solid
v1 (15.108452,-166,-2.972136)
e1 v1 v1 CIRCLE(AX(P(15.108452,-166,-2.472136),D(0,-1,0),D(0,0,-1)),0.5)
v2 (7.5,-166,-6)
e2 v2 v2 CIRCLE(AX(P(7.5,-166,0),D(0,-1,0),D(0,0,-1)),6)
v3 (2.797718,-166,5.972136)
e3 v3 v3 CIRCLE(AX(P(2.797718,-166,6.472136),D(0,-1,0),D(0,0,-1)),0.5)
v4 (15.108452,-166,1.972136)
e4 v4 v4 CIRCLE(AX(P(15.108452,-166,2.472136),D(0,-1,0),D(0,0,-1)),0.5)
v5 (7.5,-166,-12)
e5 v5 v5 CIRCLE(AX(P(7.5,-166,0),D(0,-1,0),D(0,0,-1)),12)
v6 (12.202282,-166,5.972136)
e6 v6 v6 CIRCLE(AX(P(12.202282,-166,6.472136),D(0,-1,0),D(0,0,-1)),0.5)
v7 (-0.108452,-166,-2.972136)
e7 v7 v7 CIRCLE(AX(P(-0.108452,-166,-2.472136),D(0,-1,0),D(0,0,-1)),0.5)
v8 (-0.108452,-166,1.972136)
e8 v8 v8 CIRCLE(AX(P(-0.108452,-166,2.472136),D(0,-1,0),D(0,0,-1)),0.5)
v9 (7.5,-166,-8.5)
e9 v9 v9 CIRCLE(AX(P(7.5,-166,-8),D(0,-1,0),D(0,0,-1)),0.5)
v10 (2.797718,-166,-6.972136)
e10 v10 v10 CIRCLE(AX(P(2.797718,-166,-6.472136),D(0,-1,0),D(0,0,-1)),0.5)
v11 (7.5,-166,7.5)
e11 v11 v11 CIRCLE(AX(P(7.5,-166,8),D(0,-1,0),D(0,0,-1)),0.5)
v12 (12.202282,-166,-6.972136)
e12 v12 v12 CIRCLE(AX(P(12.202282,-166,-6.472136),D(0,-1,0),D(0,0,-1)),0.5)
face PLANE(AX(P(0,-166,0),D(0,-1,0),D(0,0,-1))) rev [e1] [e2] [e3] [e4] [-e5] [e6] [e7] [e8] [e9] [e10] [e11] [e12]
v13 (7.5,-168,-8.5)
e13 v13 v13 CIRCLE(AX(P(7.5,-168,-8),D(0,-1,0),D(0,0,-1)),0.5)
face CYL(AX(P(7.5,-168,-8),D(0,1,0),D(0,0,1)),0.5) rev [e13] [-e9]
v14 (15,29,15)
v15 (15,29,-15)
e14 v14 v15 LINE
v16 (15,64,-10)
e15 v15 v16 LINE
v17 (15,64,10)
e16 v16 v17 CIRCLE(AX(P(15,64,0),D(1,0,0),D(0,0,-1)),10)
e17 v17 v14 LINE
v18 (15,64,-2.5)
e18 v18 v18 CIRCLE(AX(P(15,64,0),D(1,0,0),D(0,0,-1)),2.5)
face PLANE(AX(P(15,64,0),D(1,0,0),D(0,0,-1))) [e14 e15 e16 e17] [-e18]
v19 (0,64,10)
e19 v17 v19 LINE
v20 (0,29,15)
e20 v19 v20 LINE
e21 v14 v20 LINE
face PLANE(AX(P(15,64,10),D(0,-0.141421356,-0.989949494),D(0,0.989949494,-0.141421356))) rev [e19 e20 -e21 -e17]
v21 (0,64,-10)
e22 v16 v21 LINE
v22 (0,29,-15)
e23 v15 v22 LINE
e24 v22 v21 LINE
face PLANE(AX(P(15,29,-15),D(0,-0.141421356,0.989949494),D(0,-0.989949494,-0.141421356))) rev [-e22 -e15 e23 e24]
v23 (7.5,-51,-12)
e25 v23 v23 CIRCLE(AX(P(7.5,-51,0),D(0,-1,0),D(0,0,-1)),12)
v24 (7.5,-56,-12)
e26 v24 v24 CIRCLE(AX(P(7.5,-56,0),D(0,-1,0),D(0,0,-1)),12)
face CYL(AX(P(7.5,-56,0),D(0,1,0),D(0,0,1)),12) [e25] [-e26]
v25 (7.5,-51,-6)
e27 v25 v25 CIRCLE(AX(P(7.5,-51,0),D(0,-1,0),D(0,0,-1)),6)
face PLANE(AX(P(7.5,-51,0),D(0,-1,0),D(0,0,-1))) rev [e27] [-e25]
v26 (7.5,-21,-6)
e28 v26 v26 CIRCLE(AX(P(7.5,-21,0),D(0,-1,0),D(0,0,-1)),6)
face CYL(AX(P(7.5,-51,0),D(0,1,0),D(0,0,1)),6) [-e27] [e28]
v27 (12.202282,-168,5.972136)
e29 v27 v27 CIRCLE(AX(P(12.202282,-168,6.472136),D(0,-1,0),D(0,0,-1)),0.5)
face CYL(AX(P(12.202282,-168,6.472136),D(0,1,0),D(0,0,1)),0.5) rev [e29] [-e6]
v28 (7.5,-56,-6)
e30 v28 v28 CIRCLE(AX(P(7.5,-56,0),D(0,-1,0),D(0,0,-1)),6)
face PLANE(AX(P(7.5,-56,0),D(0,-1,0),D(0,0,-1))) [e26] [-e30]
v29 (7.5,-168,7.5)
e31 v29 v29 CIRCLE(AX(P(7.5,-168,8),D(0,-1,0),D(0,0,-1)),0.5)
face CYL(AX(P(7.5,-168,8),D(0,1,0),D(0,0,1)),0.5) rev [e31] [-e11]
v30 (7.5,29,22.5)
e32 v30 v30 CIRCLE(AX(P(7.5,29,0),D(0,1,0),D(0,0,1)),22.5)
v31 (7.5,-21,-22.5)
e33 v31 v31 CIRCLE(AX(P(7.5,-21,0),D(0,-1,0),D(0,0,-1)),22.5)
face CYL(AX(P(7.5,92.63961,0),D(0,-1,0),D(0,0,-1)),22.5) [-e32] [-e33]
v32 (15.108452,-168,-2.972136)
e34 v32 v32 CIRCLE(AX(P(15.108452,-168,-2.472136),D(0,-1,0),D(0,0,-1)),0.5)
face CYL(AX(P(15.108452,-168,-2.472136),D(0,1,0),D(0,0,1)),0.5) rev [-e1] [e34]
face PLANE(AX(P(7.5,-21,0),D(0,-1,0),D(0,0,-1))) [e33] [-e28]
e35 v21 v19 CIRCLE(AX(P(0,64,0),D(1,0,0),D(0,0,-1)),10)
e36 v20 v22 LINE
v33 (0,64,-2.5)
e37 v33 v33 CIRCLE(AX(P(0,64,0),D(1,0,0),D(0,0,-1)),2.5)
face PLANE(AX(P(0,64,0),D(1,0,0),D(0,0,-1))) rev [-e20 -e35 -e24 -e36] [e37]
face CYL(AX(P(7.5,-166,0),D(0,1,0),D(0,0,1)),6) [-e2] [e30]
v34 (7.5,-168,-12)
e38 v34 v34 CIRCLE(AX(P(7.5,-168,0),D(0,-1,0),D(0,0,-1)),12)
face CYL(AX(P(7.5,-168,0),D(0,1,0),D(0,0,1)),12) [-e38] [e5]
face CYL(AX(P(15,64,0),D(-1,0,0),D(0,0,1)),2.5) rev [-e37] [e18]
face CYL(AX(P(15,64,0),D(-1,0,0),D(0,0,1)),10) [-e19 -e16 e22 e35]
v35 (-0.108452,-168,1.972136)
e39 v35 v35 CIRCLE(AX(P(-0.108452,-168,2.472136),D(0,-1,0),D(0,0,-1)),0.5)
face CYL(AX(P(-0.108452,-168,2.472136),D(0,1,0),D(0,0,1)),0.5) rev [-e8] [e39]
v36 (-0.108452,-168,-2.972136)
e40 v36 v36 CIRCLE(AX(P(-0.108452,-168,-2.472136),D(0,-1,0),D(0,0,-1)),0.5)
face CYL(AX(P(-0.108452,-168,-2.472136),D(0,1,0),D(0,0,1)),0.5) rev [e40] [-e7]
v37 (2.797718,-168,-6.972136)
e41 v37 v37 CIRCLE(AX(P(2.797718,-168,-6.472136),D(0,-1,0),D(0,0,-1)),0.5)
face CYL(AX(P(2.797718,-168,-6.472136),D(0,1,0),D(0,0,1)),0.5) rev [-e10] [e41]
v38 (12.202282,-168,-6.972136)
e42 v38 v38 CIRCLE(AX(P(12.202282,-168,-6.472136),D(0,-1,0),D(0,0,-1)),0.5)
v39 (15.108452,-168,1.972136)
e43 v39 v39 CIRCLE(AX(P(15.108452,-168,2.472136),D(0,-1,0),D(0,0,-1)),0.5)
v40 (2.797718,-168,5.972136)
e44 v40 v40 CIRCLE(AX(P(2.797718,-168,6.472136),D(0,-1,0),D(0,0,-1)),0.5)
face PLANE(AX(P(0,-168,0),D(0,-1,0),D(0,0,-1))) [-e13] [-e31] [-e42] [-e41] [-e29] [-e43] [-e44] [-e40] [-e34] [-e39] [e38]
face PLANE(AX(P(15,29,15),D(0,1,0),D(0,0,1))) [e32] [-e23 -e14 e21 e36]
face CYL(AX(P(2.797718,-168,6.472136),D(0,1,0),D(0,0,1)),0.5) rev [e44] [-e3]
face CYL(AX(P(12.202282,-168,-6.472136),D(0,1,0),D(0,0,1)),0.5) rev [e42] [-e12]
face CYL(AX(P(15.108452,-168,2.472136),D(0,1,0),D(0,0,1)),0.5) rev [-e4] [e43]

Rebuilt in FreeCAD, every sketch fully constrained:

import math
import FreeCAD as App
import Part
import Sketcher
from FreeCAD import Vector

doc = App.newDocument("Part")
params = doc.addObject("Spreadsheet::Sheet", "Params")
for row, (alias, value) in enumerate([
    ("sketch1_diameter", "5 mm"),
    ("sketch1_radius", "10 mm"),
    ("sketch1_height", "30 mm"),
    ("pad1_length", "15 mm"),
    ("sketch2_diameter", "45 mm"),
    ("pad2_length", "39 mm"),
    ("sketch3_diameter", "45 mm"),
    ("pad3_length", "5 mm"),
    ("sketch4_diameter", "45 mm"),
    ("pad4_length", "6 mm"),
    ("sketch5_diameter", "12 mm"),
    ("pad5_length", "30 mm"),
    ("sketch6_diameter", "24 mm"),
    ("pad6_length", "5 mm"),
    ("sketch7_diameter", "12 mm"),
    ("pad7_length", "110 mm"),
    ("sketch8_diameter", "24 mm"),
    ("sketch8_diameter2", "1 mm"),
    ("pad8_length", "2 mm"),
], start=1):
    params.set(f"A{row}", alias)
    params.set(f"B{row}", "=" + value)
    params.setAlias(f"B{row}", alias)

body = doc.addObject("PartDesign::Body", "Body")

# Sketch on YZ plane
sketch1 = body.newObject("Sketcher::SketchObject", "Sketch")
sketch1.AttachmentSupport = (doc.getObject("YZ_Plane"), [""])
sketch1.MapMode = "FlatFace"
sketch1.addGeometry([
    Part.LineSegment(Vector(64, 10, 0), Vector(29, 15, 0)),  # 0
    Part.LineSegment(Vector(29, 15, 0), Vector(29, -15, 0)),  # 1
    Part.LineSegment(Vector(29, -15, 0), Vector(64, -10, 0)),  # 2
    Part.ArcOfCircle(Part.Circle(Vector(64, 0, 0), Vector(0, 0, 1), 10), math.radians(-90), math.radians(90)),  # 3
    Part.Circle(Vector(64, 0, 0), Vector(0, 0, 1), 2.5),  # 4
], False)
sketch1.addConstraint([
    Sketcher.Constraint("Coincident", 0, 2, 1, 1),
    Sketcher.Constraint("Coincident", 1, 2, 2, 1),
    Sketcher.Constraint("Coincident", 2, 2, 3, 1),
    Sketcher.Constraint("Coincident", 3, 2, 0, 1),
    Sketcher.Constraint("Vertical", 1),
    Sketcher.Constraint("Coincident", 4, 3, 3, 3),
    Sketcher.Constraint("Symmetric", 2, 2, 3, 2, -1),
    Sketcher.Constraint("Vertical", 4, 3, 2, 2),
    Sketcher.Constraint("Equal", 0, 2),
    Sketcher.Constraint("Diameter", 4, 5.0),
    Sketcher.Constraint("Radius", 3, 10.0),
    Sketcher.Constraint("DistanceY", 1, 2, 1, 1, 30.0),
    Sketcher.Constraint("DistanceX", -1, 1, 3, 3, 64.0),
    Sketcher.Constraint("DistanceX", -1, 1, 0, 2, 29.0),
])
sketch1.setExpression("Constraints[9]", "Params.sketch1_diameter")
sketch1.setExpression("Constraints[10]", "Params.sketch1_radius")
sketch1.setExpression("Constraints[11]", "Params.sketch1_height")
pad1 = body.newObject("PartDesign::Pad", "Pad")
pad1.Profile = sketch1
pad1.setExpression("Length", "Params.pad1_length")

# Sketch on XZ plane
sketch2 = body.newObject("Sketcher::SketchObject", "Sketch001")
sketch2.AttachmentSupport = (doc.getObject("XZ_Plane"), [""])
sketch2.MapMode = "FlatFace"
sketch2.AttachmentOffset = App.Placement(Vector(0, 0, 10), App.Rotation())
sketch2.addGeometry(Part.Circle(Vector(8, 0, 0), Vector(0, 0, 1), 22), False)
sketch2.addConstraint([
    Sketcher.Constraint("PointOnObject", 0, 3, -1),
    Sketcher.Constraint("Diameter", 0, 45.0),
    Sketcher.Constraint("DistanceX", -1, 1, 0, 3, 7.5),
])
sketch2.setExpression("Constraints[1]", "Params.sketch2_diameter")
pad2 = body.newObject("PartDesign::Pad", "Pad001")
pad2.Profile = sketch2
pad2.setExpression("Length", "Params.pad2_length")
pad2.Reversed = True

# Sketch on XZ plane
sketch3 = body.newObject("Sketcher::SketchObject", "Sketch002")
sketch3.AttachmentSupport = (doc.getObject("XZ_Plane"), [""])
sketch3.MapMode = "FlatFace"
sketch3.AttachmentOffset = App.Placement(Vector(0, 0, 15), App.Rotation())
sketch3.addGeometry(Part.Circle(Vector(8, 0, 0), Vector(0, 0, 1), 22), False)
sketch3.addConstraint([
    Sketcher.Constraint("PointOnObject", 0, 3, -1),
    Sketcher.Constraint("Diameter", 0, 45.0),
    Sketcher.Constraint("DistanceX", -1, 1, 0, 3, 7.5),
])
sketch3.setExpression("Constraints[1]", "Params.sketch3_diameter")
pad3 = body.newObject("PartDesign::Pad", "Pad002")
pad3.Profile = sketch3
pad3.setExpression("Length", "Params.pad3_length")
pad3.Reversed = True

# Sketch on XZ plane
sketch4 = body.newObject("Sketcher::SketchObject", "Sketch003")
sketch4.AttachmentSupport = (doc.getObject("XZ_Plane"), [""])
sketch4.MapMode = "FlatFace"
sketch4.AttachmentOffset = App.Placement(Vector(0, 0, 21), App.Rotation())
sketch4.addGeometry(Part.Circle(Vector(8, 0, 0), Vector(0, 0, 1), 22), False)
sketch4.addConstraint([
    Sketcher.Constraint("PointOnObject", 0, 3, -1),
    Sketcher.Constraint("Diameter", 0, 45.0),
    Sketcher.Constraint("DistanceX", -1, 1, 0, 3, 7.5),
])
sketch4.setExpression("Constraints[1]", "Params.sketch4_diameter")
pad4 = body.newObject("PartDesign::Pad", "Pad003")
pad4.Profile = sketch4
pad4.setExpression("Length", "Params.pad4_length")
pad4.Reversed = True

# Sketch on XZ plane
sketch5 = body.newObject("Sketcher::SketchObject", "Sketch004")
sketch5.AttachmentSupport = (doc.getObject("XZ_Plane"), [""])
sketch5.MapMode = "FlatFace"
sketch5.AttachmentOffset = App.Placement(Vector(0, 0, 21), App.Rotation())
sketch5.addGeometry(Part.Circle(Vector(8, 0, 0), Vector(0, 0, 1), 6), False)
sketch5.addConstraint([
    Sketcher.Constraint("PointOnObject", 0, 3, -1),
    Sketcher.Constraint("Diameter", 0, 12.0),
    Sketcher.Constraint("DistanceX", -1, 1, 0, 3, 7.5),
])
sketch5.setExpression("Constraints[1]", "Params.sketch5_diameter")
pad5 = body.newObject("PartDesign::Pad", "Pad004")
pad5.Profile = sketch5
pad5.setExpression("Length", "Params.pad5_length")

# Sketch on XZ plane
sketch6 = body.newObject("Sketcher::SketchObject", "Sketch005")
sketch6.AttachmentSupport = (doc.getObject("XZ_Plane"), [""])
sketch6.MapMode = "FlatFace"
sketch6.AttachmentOffset = App.Placement(Vector(0, 0, 51), App.Rotation())
sketch6.addGeometry(Part.Circle(Vector(8, 0, 0), Vector(0, 0, 1), 12), False)
sketch6.addConstraint([
    Sketcher.Constraint("PointOnObject", 0, 3, -1),
    Sketcher.Constraint("Diameter", 0, 24.0),
    Sketcher.Constraint("DistanceX", -1, 1, 0, 3, 7.5),
])
sketch6.setExpression("Constraints[1]", "Params.sketch6_diameter")
pad6 = body.newObject("PartDesign::Pad", "Pad005")
pad6.Profile = sketch6
pad6.setExpression("Length", "Params.pad6_length")

# Sketch on XZ plane
sketch7 = body.newObject("Sketcher::SketchObject", "Sketch006")
sketch7.AttachmentSupport = (doc.getObject("XZ_Plane"), [""])
sketch7.MapMode = "FlatFace"
sketch7.AttachmentOffset = App.Placement(Vector(0, 0, 56), App.Rotation())
sketch7.addGeometry(Part.Circle(Vector(8, 0, 0), Vector(0, 0, 1), 6), False)
sketch7.addConstraint([
    Sketcher.Constraint("PointOnObject", 0, 3, -1),
    Sketcher.Constraint("Diameter", 0, 12.0),
    Sketcher.Constraint("DistanceX", -1, 1, 0, 3, 7.5),
])
sketch7.setExpression("Constraints[1]", "Params.sketch7_diameter")
pad7 = body.newObject("PartDesign::Pad", "Pad006")
pad7.Profile = sketch7
pad7.setExpression("Length", "Params.pad7_length")

# Sketch on XZ plane
sketch8 = body.newObject("Sketcher::SketchObject", "Sketch007")
sketch8.AttachmentSupport = (doc.getObject("XZ_Plane"), [""])
sketch8.MapMode = "FlatFace"
sketch8.AttachmentOffset = App.Placement(Vector(0, 0, 166), App.Rotation())
sketch8.addGeometry([
    Part.Circle(Vector(7.5, 0, 0), Vector(0, 0, 1), 12),  # 0
    Part.Circle(Vector(2.8, 6.5, 0), Vector(0, 0, 1), 0.5),  # 1
    Part.Circle(Vector(-0.1, 2.5, 0), Vector(0, 0, 1), 0.5),  # 2
    Part.Circle(Vector(7.5, 8, 0), Vector(0, 0, 1), 0.5),  # 3
    Part.Circle(Vector(-0.1, -2.5, 0), Vector(0, 0, 1), 0.5),  # 4
    Part.Circle(Vector(2.8, -6.5, 0), Vector(0, 0, 1), 0.5),  # 5
    Part.Circle(Vector(12.2, 6.5, 0), Vector(0, 0, 1), 0.5),  # 6
    Part.Circle(Vector(15.1, 2.5, 0), Vector(0, 0, 1), 0.5),  # 7
    Part.Circle(Vector(7.5, -8, 0), Vector(0, 0, 1), 0.5),  # 8
    Part.Circle(Vector(15.1, -2.5, 0), Vector(0, 0, 1), 0.5),  # 9
    Part.Circle(Vector(12.2, -6.5, 0), Vector(0, 0, 1), 0.5),  # 10
], False)
sketch8.addConstraint([
    Sketcher.Constraint("Equal", 1, 2),
    Sketcher.Constraint("Equal", 2, 3),
    Sketcher.Constraint("Equal", 3, 4),
    Sketcher.Constraint("Equal", 4, 5),
    Sketcher.Constraint("Equal", 5, 6),
    Sketcher.Constraint("Equal", 6, 7),
    Sketcher.Constraint("Equal", 7, 8),
    Sketcher.Constraint("Equal", 8, 9),
    Sketcher.Constraint("Equal", 9, 10),
    Sketcher.Constraint("Symmetric", 2, 3, 4, 3, -1),
    Sketcher.Constraint("Symmetric", 1, 3, 5, 3, -1),
    Sketcher.Constraint("Symmetric", 3, 3, 8, 3, -1),
    Sketcher.Constraint("Symmetric", 7, 3, 9, 3, -1),
    Sketcher.Constraint("Symmetric", 6, 3, 10, 3, -1),
    Sketcher.Constraint("PointOnObject", 0, 3, -1),
    Sketcher.Constraint("Horizontal", 1, 3, 6, 3),
    Sketcher.Constraint("Horizontal", 2, 3, 7, 3),
    Sketcher.Constraint("Vertical", 0, 3, 3, 3),
    Sketcher.Constraint("Diameter", 0, 24.0),
    Sketcher.Constraint("Diameter", 1, 1.0),
    Sketcher.Constraint("DistanceY", -1, 1, 3, 3, 8.0),
    Sketcher.Constraint("DistanceY", 2, 3, 1, 3, 4.0),
    Sketcher.Constraint("DistanceX", -1, 1, 0, 3, 7.5),
    Sketcher.Constraint("DistanceX", 2, 3, 1, 3, 2.90617),
    Sketcher.Constraint("DistanceY", 4, 3, 2, 3, 4.944272),
    Sketcher.Constraint("DistanceX", 6, 3, 7, 3, 2.90617),
    Sketcher.Constraint("DistanceX", -1, 1, 1, 3, 2.797718),
    Sketcher.Constraint("DistanceX", -1, 1, 6, 3, 12.202282),
])
sketch8.setExpression("Constraints[18]", "Params.sketch8_diameter")
sketch8.setExpression("Constraints[19]", "Params.sketch8_diameter2")
pad8 = body.newObject("PartDesign::Pad", "Pad007")
pad8.Profile = sketch8
pad8.setExpression("Length", "Params.pad8_length")

doc.recompute()
